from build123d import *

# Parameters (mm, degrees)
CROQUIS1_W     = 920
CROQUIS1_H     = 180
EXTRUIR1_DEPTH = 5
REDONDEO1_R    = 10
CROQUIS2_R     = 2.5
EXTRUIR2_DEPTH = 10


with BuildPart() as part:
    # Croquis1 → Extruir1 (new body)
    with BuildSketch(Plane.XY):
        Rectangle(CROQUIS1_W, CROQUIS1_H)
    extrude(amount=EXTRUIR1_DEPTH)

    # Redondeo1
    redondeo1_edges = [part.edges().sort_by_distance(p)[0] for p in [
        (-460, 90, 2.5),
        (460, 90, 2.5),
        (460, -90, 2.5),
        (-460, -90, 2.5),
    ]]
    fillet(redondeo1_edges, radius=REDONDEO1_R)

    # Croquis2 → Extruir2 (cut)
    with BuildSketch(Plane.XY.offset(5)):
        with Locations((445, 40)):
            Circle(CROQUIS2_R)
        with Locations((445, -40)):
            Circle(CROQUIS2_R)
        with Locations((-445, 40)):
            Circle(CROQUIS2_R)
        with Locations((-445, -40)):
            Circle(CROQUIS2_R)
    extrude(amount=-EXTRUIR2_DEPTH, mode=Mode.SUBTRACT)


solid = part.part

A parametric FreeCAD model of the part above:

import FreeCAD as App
import Part
import Sketcher

V = App.Vector
Q = App.Units.Quantity


def edges_at(feature, points):
    """Names of the edges that pass closest to the given points."""
    edges = feature.Shape.Edges
    near = lambda p: min(range(len(edges)), key=lambda i: edges[i].distToShape(Part.Vertex(*p))[0])
    return sorted({f"Edge{near(p) + 1}" for p in points})


def add_polygon(sketch, points):
    """Adds a closed chain of lines whose ends are joined by coincident constraints."""
    first, n = sketch.GeometryCount, len(points)
    for a, b in zip(points, points[1:] + points[:1]):
        sketch.addGeometry(Part.LineSegment(App.Vector(*a, 0), App.Vector(*b, 0)), False)
    for i in range(n):
        sketch.addConstraint(Sketcher.Constraint("Coincident", first + i, 2, first + (i + 1) % n, 1))

doc = App.newDocument("Part")
params = doc.addObject("Spreadsheet::Sheet", "Params")
for row, (alias, value) in enumerate([
    ("sketch1_width", "920 mm"),
    ("sketch1_height", "180 mm"),
    ("pad1_length", "5 mm"),
    ("fillet_radius", "10 mm"),
    ("sketch2_diameter", "5 mm"),
    ("pocket1_length", "10 mm"),
], start=1):
    params.set(f"A{row}", alias)
    params.set(f"B{row}", "=" + value)
    params.setAlias(f"B{row}", alias)

body = doc.addObject("PartDesign::Body", "Body")

# Sketch on XY plane
sketch1 = body.newObject("Sketcher::SketchObject", "Sketch")
sketch1.AttachmentSupport = (doc.getObject("XY_Plane"), [""])
sketch1.MapMode = "FlatFace"
add_polygon(sketch1, [(-460, 90), (-460, -90), (460, -90), (460, 90)])  # lines 0-3
sketch1.addConstraint(Sketcher.Constraint("Vertical", 0))
sketch1.addConstraint(Sketcher.Constraint("Horizontal", 1))
sketch1.addConstraint(Sketcher.Constraint("Vertical", 2))
sketch1.addConstraint(Sketcher.Constraint("Horizontal", 3))
sketch1.addConstraint(Sketcher.Constraint("Symmetric", 0, 2, 2, 2, -1, 1))
sketch1.addConstraint(Sketcher.Constraint("DistanceX", 1, 1, 1, 2, Q("920 mm")))
sketch1.addConstraint(Sketcher.Constraint("DistanceY", 0, 2, 0, 1, Q("180 mm")))
sketch1.setExpression("Constraints[9]", "Params.sketch1_width")
sketch1.setExpression("Constraints[10]", "Params.sketch1_height")
pad1 = body.newObject("PartDesign::Pad", "Pad")
pad1.Profile = sketch1
pad1.setExpression("Length", "Params.pad1_length")
doc.recompute()

fillet = body.newObject("PartDesign::Fillet", "Fillet")
fillet.Base = (pad1, edges_at(pad1, [
    (-460, 90, 2.5),
    (460, 90, 2.5),
    (460, -90, 2.5),
    (-460, -90, 2.5),
]))
fillet.setExpression("Radius", "Params.fillet_radius")

# Sketch on XY plane
sketch2 = body.newObject("Sketcher::SketchObject", "Sketch001")
sketch2.AttachmentSupport = (doc.getObject("XY_Plane"), [""])
sketch2.MapMode = "FlatFace"
sketch2.AttachmentOffset = App.Placement(V(0, 0, 5), App.Rotation())
sketch2.addGeometry(Part.Circle(V(445, 40, 0), V(0, 0, 1), 2.5), False)
sketch2.addGeometry(Part.Circle(V(445, -40, 0), V(0, 0, 1), 2.5), False)
sketch2.addGeometry(Part.Circle(V(-445, 40, 0), V(0, 0, 1), 2.5), False)
sketch2.addGeometry(Part.Circle(V(-445, -40, 0), V(0, 0, 1), 2.5), False)
sketch2.addConstraint(Sketcher.Constraint("Equal", 0, 1))
sketch2.addConstraint(Sketcher.Constraint("Equal", 1, 2))
sketch2.addConstraint(Sketcher.Constraint("Equal", 2, 3))
sketch2.addConstraint(Sketcher.Constraint("Symmetric", 1, 3, 2, 3, -1, 1))
sketch2.addConstraint(Sketcher.Constraint("Symmetric", 0, 3, 3, 3, -1, 1))
sketch2.addConstraint(Sketcher.Constraint("Symmetric", 0, 3, 2, 3, -2))
sketch2.addConstraint(Sketcher.Constraint("Diameter", 0, Q("5 mm")))
sketch2.addConstraint(Sketcher.Constraint("DistanceX", -1, 1, 0, 3, Q("445 mm")))
sketch2.addConstraint(Sketcher.Constraint("DistanceY", -1, 1, 0, 3, Q("40 mm")))
sketch2.setExpression("Constraints[6]", "Params.sketch2_diameter")
pocket1 = body.newObject("PartDesign::Pocket", "Pocket")
pocket1.Profile = sketch2
pocket1.setExpression("Length", "Params.pocket1_length")

doc.recompute()
